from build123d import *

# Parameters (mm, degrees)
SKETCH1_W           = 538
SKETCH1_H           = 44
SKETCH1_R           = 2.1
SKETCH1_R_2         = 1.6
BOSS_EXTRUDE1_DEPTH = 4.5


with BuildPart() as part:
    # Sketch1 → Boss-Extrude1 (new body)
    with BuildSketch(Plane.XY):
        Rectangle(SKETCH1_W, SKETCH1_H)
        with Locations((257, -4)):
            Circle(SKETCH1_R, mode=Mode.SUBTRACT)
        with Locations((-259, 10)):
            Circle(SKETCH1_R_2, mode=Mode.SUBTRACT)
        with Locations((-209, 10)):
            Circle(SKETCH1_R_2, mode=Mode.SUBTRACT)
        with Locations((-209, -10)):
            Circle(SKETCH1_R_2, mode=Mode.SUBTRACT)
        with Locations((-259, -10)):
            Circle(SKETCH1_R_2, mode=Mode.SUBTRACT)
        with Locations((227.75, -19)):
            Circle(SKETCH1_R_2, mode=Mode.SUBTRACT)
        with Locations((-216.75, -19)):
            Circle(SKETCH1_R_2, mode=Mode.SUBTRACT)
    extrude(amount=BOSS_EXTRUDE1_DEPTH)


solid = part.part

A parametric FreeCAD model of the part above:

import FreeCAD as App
import Part
import Sketcher


def add_polygon(sketch, points):
    """Adds a closed chain of lines whose ends are joined by coincident constraints."""
    first, n = sketch.GeometryCount, len(points)
    for a, b in zip(points, points[1:] + points[:1]):
        sketch.addGeometry(Part.LineSegment(App.Vector(*a, 0), App.Vector(*b, 0)), False)
    for i in range(n):
        sketch.addConstraint(Sketcher.Constraint("Coincident", first + i, 2, first + (i + 1) % n, 1))

doc = App.newDocument("Part")
body = doc.addObject("PartDesign::Body", "Body")

# Sketch on XY plane
sketch1 = body.newObject("Sketcher::SketchObject", "Sketch")
sketch1.AttachmentSupport = (doc.getObject("XY_Plane"), [""])
sketch1.MapMode = "FlatFace"
add_polygon(sketch1, [(-269, 22), (-269, -22), (269, -22), (269, 22)])  # lines 0-3
sketch1.addGeometry(Part.Circle(App.Vector(-216.75, -19, 0), App.Vector(0, 0, 1), 1.6), False)  # 4
sketch1.addGeometry(Part.Circle(App.Vector(-259, -10, 0), App.Vector(0, 0, 1), 1.6), False)  # 5
sketch1.addGeometry(Part.Circle(App.Vector(-209, -10, 0), App.Vector(0, 0, 1), 1.6), False)  # 6
sketch1.addGeometry(Part.Circle(App.Vector(227.75, -19, 0), App.Vector(0, 0, 1), 1.6), False)  # 7
sketch1.addGeometry(Part.Circle(App.Vector(-259, 10, 0), App.Vector(0, 0, 1), 1.6), False)  # 8
sketch1.addGeometry(Part.Circle(App.Vector(-209, 10, 0), App.Vector(0, 0, 1), 1.6), False)  # 9
sketch1.addGeometry(Part.Circle(App.Vector(257, -4, 0), App.Vector(0, 0, 1), 2.1), False)  # 10
sketch1.addConstraint([
    Sketcher.Constraint("Vertical", 0),
    Sketcher.Constraint("Horizontal", 1),
    Sketcher.Constraint("Vertical", 2),
    Sketcher.Constraint("Horizontal", 3),
    Sketcher.Constraint("Equal", 4, 5),
    Sketcher.Constraint("Equal", 5, 6),
    Sketcher.Constraint("Equal", 6, 7),
    Sketcher.Constraint("Equal", 7, 8),
    Sketcher.Constraint("Equal", 8, 9),
    Sketcher.Constraint("Symmetric", 0, 2, 2, 2, -1, 1),
    Sketcher.Constraint("Symmetric", 5, 3, 8, 3, -1),
    Sketcher.Constraint("Symmetric", 6, 3, 9, 3, -1),
    Sketcher.Constraint("Horizontal", 5, 3, 6, 3),
    Sketcher.Constraint("Horizontal", 4, 3, 7, 3),
    Sketcher.Constraint("Diameter", 4, 3.2),
    Sketcher.Constraint("Diameter", 10, 4.2),
    Sketcher.Constraint("DistanceX", 1, 1, 1, 2, 538.0),
    Sketcher.Constraint("DistanceY", 0, 2, 0, 1, 44.0),
    Sketcher.Constraint("DistanceY", 4, 3, -1, 1, 19.0),
    Sketcher.Constraint("DistanceX", 5, 3, -1, 1, 259.0),
    Sketcher.Constraint("DistanceY", 5, 3, -1, 1, 10.0),
    Sketcher.Constraint("DistanceX", 6, 3, -1, 1, 209.0),
    Sketcher.Constraint("DistanceX", -1, 1, 10, 3, 257.0),
    Sketcher.Constraint("DistanceY", 10, 3, -1, 1, 4.0),
    Sketcher.Constraint("DistanceX", 4, 3, 7, 3, 444.5),
    Sketcher.Constraint("DistanceX", 4, 3, -1, 1, 216.75),
])
pad1 = body.newObject("PartDesign::Pad", "Pad")
pad1.Profile = sketch1
pad1.Length = 4.5

doc.recompute()
